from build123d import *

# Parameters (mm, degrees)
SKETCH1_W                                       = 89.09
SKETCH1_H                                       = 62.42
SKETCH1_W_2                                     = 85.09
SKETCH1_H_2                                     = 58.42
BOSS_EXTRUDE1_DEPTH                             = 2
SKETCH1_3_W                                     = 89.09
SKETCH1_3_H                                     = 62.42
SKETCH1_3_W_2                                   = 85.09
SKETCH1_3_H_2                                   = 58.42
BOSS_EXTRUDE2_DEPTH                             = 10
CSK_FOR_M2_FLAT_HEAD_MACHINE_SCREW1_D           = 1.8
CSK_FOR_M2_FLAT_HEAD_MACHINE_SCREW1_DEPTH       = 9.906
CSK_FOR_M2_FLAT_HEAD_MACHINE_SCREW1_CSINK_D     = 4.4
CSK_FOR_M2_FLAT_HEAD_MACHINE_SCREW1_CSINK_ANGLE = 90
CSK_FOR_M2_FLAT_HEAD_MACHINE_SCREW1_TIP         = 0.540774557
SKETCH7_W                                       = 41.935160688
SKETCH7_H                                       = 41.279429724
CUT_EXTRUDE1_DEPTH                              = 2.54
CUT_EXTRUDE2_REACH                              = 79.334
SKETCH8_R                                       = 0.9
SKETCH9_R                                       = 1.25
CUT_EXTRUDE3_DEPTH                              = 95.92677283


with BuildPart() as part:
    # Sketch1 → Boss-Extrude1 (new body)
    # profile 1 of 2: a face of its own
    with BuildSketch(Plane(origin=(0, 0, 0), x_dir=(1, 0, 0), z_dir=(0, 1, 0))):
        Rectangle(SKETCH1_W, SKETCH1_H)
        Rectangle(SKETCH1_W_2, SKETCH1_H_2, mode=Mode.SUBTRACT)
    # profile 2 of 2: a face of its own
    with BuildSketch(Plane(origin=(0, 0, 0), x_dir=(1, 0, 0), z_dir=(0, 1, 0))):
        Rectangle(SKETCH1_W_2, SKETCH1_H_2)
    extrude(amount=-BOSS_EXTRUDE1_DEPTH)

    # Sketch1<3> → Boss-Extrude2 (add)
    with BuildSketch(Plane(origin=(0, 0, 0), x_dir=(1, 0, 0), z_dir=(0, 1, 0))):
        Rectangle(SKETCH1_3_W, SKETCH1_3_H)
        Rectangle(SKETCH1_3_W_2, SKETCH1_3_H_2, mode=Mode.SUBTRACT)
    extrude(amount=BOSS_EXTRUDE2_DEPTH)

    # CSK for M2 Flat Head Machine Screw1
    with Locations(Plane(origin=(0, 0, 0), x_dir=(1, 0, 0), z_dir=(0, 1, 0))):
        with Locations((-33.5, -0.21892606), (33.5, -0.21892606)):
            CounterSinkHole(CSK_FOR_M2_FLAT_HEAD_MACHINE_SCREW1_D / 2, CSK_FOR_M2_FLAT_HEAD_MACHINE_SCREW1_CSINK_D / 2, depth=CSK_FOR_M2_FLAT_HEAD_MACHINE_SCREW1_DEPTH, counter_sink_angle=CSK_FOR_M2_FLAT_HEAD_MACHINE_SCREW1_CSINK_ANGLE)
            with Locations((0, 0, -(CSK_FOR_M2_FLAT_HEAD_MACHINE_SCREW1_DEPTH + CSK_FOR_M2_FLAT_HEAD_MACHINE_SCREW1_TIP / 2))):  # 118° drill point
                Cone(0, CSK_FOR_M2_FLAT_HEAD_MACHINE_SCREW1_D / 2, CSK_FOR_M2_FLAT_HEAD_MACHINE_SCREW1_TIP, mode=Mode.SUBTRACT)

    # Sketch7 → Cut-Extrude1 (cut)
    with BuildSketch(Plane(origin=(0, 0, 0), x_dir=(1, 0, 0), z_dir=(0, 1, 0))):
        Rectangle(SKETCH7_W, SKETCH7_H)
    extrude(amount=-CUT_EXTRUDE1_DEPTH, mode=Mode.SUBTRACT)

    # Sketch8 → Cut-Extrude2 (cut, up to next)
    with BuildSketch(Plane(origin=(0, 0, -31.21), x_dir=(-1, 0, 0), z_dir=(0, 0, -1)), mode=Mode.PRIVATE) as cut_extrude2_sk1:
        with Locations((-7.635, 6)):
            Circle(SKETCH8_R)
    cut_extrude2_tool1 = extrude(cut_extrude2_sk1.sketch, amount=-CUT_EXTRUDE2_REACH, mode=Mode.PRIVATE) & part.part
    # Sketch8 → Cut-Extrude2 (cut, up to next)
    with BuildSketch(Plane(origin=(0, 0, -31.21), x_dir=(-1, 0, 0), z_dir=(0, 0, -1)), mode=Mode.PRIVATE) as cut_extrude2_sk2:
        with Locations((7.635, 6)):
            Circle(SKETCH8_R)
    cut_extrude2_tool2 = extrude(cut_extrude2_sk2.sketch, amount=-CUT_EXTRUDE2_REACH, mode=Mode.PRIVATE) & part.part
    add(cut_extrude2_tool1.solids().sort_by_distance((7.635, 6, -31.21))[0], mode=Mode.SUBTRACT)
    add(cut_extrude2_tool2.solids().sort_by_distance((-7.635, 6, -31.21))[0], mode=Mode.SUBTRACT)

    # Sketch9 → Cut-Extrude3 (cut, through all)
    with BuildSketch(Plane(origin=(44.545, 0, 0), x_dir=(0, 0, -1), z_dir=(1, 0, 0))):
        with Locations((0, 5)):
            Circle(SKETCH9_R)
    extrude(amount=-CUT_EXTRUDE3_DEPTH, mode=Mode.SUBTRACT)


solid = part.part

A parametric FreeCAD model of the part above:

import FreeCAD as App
import Part
import Sketcher

V = App.Vector

doc = App.newDocument("Part")
body = doc.addObject("PartDesign::Body", "Body")

# Sketch on XZ plane
sketch1 = body.newObject("Sketcher::SketchObject", "Sketch")
sketch1.AttachmentSupport = (doc.getObject("XZ_Plane"), [""])
sketch1.MapMode = "FlatFace"
sketch1.addGeometry([
    Part.LineSegment(V(-45, -31, 0), V(-45, 31, 0)),
    Part.LineSegment(V(-45, 31, 0), V(45, 31, 0)),
    Part.LineSegment(V(45, 31, 0), V(45, -31, 0)),
    Part.LineSegment(V(45, -31, 0), V(-45, -31, 0)),
], False)
sketch1.addConstraint([
    Sketcher.Constraint("Coincident", 0, 2, 1, 1),
    Sketcher.Constraint("Coincident", 1, 2, 2, 1),
    Sketcher.Constraint("Coincident", 2, 2, 3, 1),
    Sketcher.Constraint("Coincident", 3, 2, 0, 1),
    Sketcher.Constraint("Vertical", 0),
    Sketcher.Constraint("Horizontal", 1),
    Sketcher.Constraint("Vertical", 2),
    Sketcher.Constraint("Horizontal", 3),
    Sketcher.Constraint("Symmetric", 0, 2, 2, 2, -1, 1),
    Sketcher.Constraint("DistanceX", 1, 1, 1, 2, 89.09),
    Sketcher.Constraint("DistanceY", 0, 1, 0, 2, 62.42),
])
pad1 = body.newObject("PartDesign::Pad", "Pad")
pad1.Profile = sketch1
pad1.Length = 2

# Sketch on XZ plane
sketch2 = body.newObject("Sketcher::SketchObject", "Sketch001")
sketch2.AttachmentSupport = (doc.getObject("XZ_Plane"), [""])
sketch2.MapMode = "FlatFace"
sketch2.addGeometry([
    Part.LineSegment(V(-45, -31, 0), V(-45, 31, 0)),  # 0
    Part.LineSegment(V(-45, 31, 0), V(45, 31, 0)),  # 1
    Part.LineSegment(V(45, 31, 0), V(45, -31, 0)),  # 2
    Part.LineSegment(V(45, -31, 0), V(-45, -31, 0)),  # 3
    Part.LineSegment(V(43, 29, 0), V(-43, 29, 0)),  # 4
    Part.LineSegment(V(-43, 29, 0), V(-43, -29, 0)),  # 5
    Part.LineSegment(V(-43, -29, 0), V(43, -29, 0)),  # 6
    Part.LineSegment(V(43, -29, 0), V(43, 29, 0)),  # 7
], False)
sketch2.addConstraint([
    Sketcher.Constraint("Coincident", 0, 2, 1, 1),
    Sketcher.Constraint("Coincident", 1, 2, 2, 1),
    Sketcher.Constraint("Coincident", 2, 2, 3, 1),
    Sketcher.Constraint("Coincident", 3, 2, 0, 1),
    Sketcher.Constraint("Coincident", 4, 2, 5, 1),
    Sketcher.Constraint("Coincident", 5, 2, 6, 1),
    Sketcher.Constraint("Coincident", 6, 2, 7, 1),
    Sketcher.Constraint("Coincident", 7, 2, 4, 1),
    Sketcher.Constraint("Vertical", 0),
    Sketcher.Constraint("Horizontal", 1),
    Sketcher.Constraint("Vertical", 2),
    Sketcher.Constraint("Horizontal", 3),
    Sketcher.Constraint("Horizontal", 4),
    Sketcher.Constraint("Vertical", 5),
    Sketcher.Constraint("Horizontal", 6),
    Sketcher.Constraint("Vertical", 7),
    Sketcher.Constraint("Symmetric", 0, 2, 2, 2, -1, 1),
    Sketcher.Constraint("Symmetric", 4, 2, 6, 2, -1, 1),
    Sketcher.Constraint("DistanceX", 0, 2, 4, 2, 2.0),
    Sketcher.Constraint("DistanceY", 4, 2, 0, 2, 2.0),
    Sketcher.Constraint("DistanceX", 1, 1, 1, 2, 89.09),
    Sketcher.Constraint("DistanceY", 0, 1, 0, 2, 62.42),
])
pad2 = body.newObject("PartDesign::Pad", "Pad001")
pad2.Profile = sketch2
pad2.Length = 10
pad2.Reversed = True

# Sketch on XZ plane
sketch3 = body.newObject("Sketcher::SketchObject", "Sketch002")
sketch3.AttachmentSupport = (doc.getObject("XZ_Plane"), [""])
sketch3.MapMode = "FlatFace"
sketch3.addGeometry([
    Part.Circle(V(-33.5, 0.2, 0), V(0, 0, 1), 0.9),
    Part.Circle(V(33.5, 0.2, 0), V(0, 0, 1), 0.9),
], False)
sketch3.addConstraint([
    Sketcher.Constraint("Equal", 0, 1),
    Sketcher.Constraint("Symmetric", 0, 3, 1, 3, -2),
    Sketcher.Constraint("Diameter", 0, 1.8),
    Sketcher.Constraint("DistanceX", 0, 3, 1, 3, 67.0),
    Sketcher.Constraint("DistanceY", -1, 1, 0, 3, 0.218926),
])
doc.recompute()
hole = body.newObject("PartDesign::Hole", "Hole")
hole.Profile = sketch3
hole.ThreadType = "None"
hole.Diameter = 1.8
hole.DepthType = "Dimension"
hole.Depth = 9.906
hole.DrillPoint = "Angled"
hole.DrillPointAngle = 118
hole.HoleCutType = "Countersink"
hole.HoleCutDiameter = 4.4
hole.HoleCutCountersinkAngle = 90
hole.Reversed = True

# Sketch on XZ plane
sketch4 = body.newObject("Sketcher::SketchObject", "Sketch003")
sketch4.AttachmentSupport = (doc.getObject("XZ_Plane"), [""])
sketch4.MapMode = "FlatFace"
sketch4.addGeometry([
    Part.LineSegment(V(-21, -21, 0), V(-21, 21, 0)),
    Part.LineSegment(V(-21, 21, 0), V(21, 21, 0)),
    Part.LineSegment(V(21, 21, 0), V(21, -21, 0)),
    Part.LineSegment(V(21, -21, 0), V(-21, -21, 0)),
], False)
sketch4.addConstraint([
    Sketcher.Constraint("Coincident", 0, 2, 1, 1),
    Sketcher.Constraint("Coincident", 1, 2, 2, 1),
    Sketcher.Constraint("Coincident", 2, 2, 3, 1),
    Sketcher.Constraint("Coincident", 3, 2, 0, 1),
    Sketcher.Constraint("Vertical", 0),
    Sketcher.Constraint("Horizontal", 1),
    Sketcher.Constraint("Vertical", 2),
    Sketcher.Constraint("Horizontal", 3),
    Sketcher.Constraint("Symmetric", 0, 2, 2, 2, -1, 1),
    Sketcher.Constraint("DistanceX", 1, 1, 1, 2, 41.935161),
    Sketcher.Constraint("DistanceY", 0, 1, 0, 2, 41.27943),
])
pocket1 = body.newObject("PartDesign::Pocket", "Pocket")
pocket1.Profile = sketch4
pocket1.Length = 2.54
pocket1.Reversed = True

# Sketch on XY plane
sketch5 = body.newObject("Sketcher::SketchObject", "Sketch004")
sketch5.AttachmentSupport = (doc.getObject("XY_Plane"), [""])
sketch5.MapMode = "FlatFace"
sketch5.AttachmentOffset = App.Placement(V(0, 0, -31.21), App.Rotation())
sketch5.addGeometry(Part.Circle(V(7.6, 6, 0), V(0, 0, 1), 0.9), False)
sketch5.addConstraint([
    Sketcher.Constraint("Diameter", 0, 1.8),
    Sketcher.Constraint("DistanceY", -1, 1, 0, 3, 6.0),
    Sketcher.Constraint("DistanceX", -1, 1, 0, 3, 7.635),
])
pocket2 = body.newObject("PartDesign::Pocket", "Pocket001")
pocket2.Profile = sketch5
pocket2.Type = "UpToFirst"
pocket2.Reversed = True

# Sketch on XY plane
sketch6 = body.newObject("Sketcher::SketchObject", "Sketch005")
sketch6.AttachmentSupport = (doc.getObject("XY_Plane"), [""])
sketch6.MapMode = "FlatFace"
sketch6.AttachmentOffset = App.Placement(V(0, 0, -31.21), App.Rotation())
sketch6.addGeometry(Part.Circle(V(-7.6, 6, 0), V(0, 0, 1), 0.9), False)
sketch6.addConstraint([
    Sketcher.Constraint("Diameter", 0, 1.8),
    Sketcher.Constraint("DistanceY", -1, 1, 0, 3, 6.0),
    Sketcher.Constraint("DistanceX", 0, 3, -1, 1, 7.635),
])
pocket3 = body.newObject("PartDesign::Pocket", "Pocket002")
pocket3.Profile = sketch6
pocket3.Type = "UpToFirst"
pocket3.Reversed = True

# Sketch on YZ plane
sketch7 = body.newObject("Sketcher::SketchObject", "Sketch006")
sketch7.AttachmentSupport = (doc.getObject("YZ_Plane"), [""])
sketch7.MapMode = "FlatFace"
sketch7.AttachmentOffset = App.Placement(V(0, 0, 44.545), App.Rotation())
sketch7.addGeometry(Part.Circle(V(5, 0, 0), V(0, 0, 1), 1.2), False)
sketch7.addConstraint([
    Sketcher.Constraint("PointOnObject", 0, 3, -1),
    Sketcher.Constraint("Diameter", 0, 2.5),
    Sketcher.Constraint("DistanceX", -1, 1, 0, 3, 5.0),
])
pocket4 = body.newObject("PartDesign::Pocket", "Pocket003")
pocket4.Profile = sketch7
pocket4.Type = "ThroughAll"

doc.recompute()
